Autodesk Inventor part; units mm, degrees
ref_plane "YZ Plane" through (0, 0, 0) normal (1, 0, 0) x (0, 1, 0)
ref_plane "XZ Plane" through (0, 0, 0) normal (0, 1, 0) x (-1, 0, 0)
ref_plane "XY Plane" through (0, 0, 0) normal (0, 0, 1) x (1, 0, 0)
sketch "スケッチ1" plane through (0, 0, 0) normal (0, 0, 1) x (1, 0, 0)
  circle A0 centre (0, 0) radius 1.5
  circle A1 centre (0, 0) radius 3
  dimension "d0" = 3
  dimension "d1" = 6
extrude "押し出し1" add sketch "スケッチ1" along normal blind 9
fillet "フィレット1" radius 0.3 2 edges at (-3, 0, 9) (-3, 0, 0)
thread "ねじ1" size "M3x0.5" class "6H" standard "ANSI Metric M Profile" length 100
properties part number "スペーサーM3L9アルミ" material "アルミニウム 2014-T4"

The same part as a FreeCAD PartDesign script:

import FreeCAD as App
import Part
import Sketcher
from FreeCAD import Vector
Q = App.Units.Quantity


def edges_at(feature, points):
    """Names of the edges that pass closest to the given points."""
    edges = feature.Shape.Edges
    near = lambda p: min(range(len(edges)), key=lambda i: edges[i].distToShape(Part.Vertex(*p))[0])
    return sorted({f"Edge{near(p) + 1}" for p in points})

doc = App.newDocument("Part")
body = doc.addObject("PartDesign::Body", "Body")

# Sketch on XY plane
sketch1 = body.newObject("Sketcher::SketchObject", "Sketch")
sketch1.AttachmentSupport = (doc.getObject("XY_Plane"), [""])
sketch1.MapMode = "FlatFace"
sketch1.addGeometry(Part.Circle(Vector(0, 0, 0), Vector(0, 0, 1), 3), False)
sketch1.addGeometry(Part.Circle(Vector(0, 0, 0), Vector(0, 0, 1), 1.5), False)
sketch1.addConstraint(Sketcher.Constraint("Coincident", 0, 3, -1, 1))
sketch1.addConstraint(Sketcher.Constraint("Coincident", 1, 3, -1, 1))
sketch1.addConstraint(Sketcher.Constraint("Diameter", 0, Q("6 mm")))
sketch1.addConstraint(Sketcher.Constraint("Diameter", 1, Q("3 mm")))
pad1 = body.newObject("PartDesign::Pad", "Pad")
pad1.Profile = sketch1
pad1.Length = 9
doc.recompute()

fillet = body.newObject("PartDesign::Fillet", "Fillet")
fillet.Base = (pad1, edges_at(pad1, [(-3, 0, 9), (-3, 0, 0)]))
fillet.Radius = 0.3

doc.recompute()
